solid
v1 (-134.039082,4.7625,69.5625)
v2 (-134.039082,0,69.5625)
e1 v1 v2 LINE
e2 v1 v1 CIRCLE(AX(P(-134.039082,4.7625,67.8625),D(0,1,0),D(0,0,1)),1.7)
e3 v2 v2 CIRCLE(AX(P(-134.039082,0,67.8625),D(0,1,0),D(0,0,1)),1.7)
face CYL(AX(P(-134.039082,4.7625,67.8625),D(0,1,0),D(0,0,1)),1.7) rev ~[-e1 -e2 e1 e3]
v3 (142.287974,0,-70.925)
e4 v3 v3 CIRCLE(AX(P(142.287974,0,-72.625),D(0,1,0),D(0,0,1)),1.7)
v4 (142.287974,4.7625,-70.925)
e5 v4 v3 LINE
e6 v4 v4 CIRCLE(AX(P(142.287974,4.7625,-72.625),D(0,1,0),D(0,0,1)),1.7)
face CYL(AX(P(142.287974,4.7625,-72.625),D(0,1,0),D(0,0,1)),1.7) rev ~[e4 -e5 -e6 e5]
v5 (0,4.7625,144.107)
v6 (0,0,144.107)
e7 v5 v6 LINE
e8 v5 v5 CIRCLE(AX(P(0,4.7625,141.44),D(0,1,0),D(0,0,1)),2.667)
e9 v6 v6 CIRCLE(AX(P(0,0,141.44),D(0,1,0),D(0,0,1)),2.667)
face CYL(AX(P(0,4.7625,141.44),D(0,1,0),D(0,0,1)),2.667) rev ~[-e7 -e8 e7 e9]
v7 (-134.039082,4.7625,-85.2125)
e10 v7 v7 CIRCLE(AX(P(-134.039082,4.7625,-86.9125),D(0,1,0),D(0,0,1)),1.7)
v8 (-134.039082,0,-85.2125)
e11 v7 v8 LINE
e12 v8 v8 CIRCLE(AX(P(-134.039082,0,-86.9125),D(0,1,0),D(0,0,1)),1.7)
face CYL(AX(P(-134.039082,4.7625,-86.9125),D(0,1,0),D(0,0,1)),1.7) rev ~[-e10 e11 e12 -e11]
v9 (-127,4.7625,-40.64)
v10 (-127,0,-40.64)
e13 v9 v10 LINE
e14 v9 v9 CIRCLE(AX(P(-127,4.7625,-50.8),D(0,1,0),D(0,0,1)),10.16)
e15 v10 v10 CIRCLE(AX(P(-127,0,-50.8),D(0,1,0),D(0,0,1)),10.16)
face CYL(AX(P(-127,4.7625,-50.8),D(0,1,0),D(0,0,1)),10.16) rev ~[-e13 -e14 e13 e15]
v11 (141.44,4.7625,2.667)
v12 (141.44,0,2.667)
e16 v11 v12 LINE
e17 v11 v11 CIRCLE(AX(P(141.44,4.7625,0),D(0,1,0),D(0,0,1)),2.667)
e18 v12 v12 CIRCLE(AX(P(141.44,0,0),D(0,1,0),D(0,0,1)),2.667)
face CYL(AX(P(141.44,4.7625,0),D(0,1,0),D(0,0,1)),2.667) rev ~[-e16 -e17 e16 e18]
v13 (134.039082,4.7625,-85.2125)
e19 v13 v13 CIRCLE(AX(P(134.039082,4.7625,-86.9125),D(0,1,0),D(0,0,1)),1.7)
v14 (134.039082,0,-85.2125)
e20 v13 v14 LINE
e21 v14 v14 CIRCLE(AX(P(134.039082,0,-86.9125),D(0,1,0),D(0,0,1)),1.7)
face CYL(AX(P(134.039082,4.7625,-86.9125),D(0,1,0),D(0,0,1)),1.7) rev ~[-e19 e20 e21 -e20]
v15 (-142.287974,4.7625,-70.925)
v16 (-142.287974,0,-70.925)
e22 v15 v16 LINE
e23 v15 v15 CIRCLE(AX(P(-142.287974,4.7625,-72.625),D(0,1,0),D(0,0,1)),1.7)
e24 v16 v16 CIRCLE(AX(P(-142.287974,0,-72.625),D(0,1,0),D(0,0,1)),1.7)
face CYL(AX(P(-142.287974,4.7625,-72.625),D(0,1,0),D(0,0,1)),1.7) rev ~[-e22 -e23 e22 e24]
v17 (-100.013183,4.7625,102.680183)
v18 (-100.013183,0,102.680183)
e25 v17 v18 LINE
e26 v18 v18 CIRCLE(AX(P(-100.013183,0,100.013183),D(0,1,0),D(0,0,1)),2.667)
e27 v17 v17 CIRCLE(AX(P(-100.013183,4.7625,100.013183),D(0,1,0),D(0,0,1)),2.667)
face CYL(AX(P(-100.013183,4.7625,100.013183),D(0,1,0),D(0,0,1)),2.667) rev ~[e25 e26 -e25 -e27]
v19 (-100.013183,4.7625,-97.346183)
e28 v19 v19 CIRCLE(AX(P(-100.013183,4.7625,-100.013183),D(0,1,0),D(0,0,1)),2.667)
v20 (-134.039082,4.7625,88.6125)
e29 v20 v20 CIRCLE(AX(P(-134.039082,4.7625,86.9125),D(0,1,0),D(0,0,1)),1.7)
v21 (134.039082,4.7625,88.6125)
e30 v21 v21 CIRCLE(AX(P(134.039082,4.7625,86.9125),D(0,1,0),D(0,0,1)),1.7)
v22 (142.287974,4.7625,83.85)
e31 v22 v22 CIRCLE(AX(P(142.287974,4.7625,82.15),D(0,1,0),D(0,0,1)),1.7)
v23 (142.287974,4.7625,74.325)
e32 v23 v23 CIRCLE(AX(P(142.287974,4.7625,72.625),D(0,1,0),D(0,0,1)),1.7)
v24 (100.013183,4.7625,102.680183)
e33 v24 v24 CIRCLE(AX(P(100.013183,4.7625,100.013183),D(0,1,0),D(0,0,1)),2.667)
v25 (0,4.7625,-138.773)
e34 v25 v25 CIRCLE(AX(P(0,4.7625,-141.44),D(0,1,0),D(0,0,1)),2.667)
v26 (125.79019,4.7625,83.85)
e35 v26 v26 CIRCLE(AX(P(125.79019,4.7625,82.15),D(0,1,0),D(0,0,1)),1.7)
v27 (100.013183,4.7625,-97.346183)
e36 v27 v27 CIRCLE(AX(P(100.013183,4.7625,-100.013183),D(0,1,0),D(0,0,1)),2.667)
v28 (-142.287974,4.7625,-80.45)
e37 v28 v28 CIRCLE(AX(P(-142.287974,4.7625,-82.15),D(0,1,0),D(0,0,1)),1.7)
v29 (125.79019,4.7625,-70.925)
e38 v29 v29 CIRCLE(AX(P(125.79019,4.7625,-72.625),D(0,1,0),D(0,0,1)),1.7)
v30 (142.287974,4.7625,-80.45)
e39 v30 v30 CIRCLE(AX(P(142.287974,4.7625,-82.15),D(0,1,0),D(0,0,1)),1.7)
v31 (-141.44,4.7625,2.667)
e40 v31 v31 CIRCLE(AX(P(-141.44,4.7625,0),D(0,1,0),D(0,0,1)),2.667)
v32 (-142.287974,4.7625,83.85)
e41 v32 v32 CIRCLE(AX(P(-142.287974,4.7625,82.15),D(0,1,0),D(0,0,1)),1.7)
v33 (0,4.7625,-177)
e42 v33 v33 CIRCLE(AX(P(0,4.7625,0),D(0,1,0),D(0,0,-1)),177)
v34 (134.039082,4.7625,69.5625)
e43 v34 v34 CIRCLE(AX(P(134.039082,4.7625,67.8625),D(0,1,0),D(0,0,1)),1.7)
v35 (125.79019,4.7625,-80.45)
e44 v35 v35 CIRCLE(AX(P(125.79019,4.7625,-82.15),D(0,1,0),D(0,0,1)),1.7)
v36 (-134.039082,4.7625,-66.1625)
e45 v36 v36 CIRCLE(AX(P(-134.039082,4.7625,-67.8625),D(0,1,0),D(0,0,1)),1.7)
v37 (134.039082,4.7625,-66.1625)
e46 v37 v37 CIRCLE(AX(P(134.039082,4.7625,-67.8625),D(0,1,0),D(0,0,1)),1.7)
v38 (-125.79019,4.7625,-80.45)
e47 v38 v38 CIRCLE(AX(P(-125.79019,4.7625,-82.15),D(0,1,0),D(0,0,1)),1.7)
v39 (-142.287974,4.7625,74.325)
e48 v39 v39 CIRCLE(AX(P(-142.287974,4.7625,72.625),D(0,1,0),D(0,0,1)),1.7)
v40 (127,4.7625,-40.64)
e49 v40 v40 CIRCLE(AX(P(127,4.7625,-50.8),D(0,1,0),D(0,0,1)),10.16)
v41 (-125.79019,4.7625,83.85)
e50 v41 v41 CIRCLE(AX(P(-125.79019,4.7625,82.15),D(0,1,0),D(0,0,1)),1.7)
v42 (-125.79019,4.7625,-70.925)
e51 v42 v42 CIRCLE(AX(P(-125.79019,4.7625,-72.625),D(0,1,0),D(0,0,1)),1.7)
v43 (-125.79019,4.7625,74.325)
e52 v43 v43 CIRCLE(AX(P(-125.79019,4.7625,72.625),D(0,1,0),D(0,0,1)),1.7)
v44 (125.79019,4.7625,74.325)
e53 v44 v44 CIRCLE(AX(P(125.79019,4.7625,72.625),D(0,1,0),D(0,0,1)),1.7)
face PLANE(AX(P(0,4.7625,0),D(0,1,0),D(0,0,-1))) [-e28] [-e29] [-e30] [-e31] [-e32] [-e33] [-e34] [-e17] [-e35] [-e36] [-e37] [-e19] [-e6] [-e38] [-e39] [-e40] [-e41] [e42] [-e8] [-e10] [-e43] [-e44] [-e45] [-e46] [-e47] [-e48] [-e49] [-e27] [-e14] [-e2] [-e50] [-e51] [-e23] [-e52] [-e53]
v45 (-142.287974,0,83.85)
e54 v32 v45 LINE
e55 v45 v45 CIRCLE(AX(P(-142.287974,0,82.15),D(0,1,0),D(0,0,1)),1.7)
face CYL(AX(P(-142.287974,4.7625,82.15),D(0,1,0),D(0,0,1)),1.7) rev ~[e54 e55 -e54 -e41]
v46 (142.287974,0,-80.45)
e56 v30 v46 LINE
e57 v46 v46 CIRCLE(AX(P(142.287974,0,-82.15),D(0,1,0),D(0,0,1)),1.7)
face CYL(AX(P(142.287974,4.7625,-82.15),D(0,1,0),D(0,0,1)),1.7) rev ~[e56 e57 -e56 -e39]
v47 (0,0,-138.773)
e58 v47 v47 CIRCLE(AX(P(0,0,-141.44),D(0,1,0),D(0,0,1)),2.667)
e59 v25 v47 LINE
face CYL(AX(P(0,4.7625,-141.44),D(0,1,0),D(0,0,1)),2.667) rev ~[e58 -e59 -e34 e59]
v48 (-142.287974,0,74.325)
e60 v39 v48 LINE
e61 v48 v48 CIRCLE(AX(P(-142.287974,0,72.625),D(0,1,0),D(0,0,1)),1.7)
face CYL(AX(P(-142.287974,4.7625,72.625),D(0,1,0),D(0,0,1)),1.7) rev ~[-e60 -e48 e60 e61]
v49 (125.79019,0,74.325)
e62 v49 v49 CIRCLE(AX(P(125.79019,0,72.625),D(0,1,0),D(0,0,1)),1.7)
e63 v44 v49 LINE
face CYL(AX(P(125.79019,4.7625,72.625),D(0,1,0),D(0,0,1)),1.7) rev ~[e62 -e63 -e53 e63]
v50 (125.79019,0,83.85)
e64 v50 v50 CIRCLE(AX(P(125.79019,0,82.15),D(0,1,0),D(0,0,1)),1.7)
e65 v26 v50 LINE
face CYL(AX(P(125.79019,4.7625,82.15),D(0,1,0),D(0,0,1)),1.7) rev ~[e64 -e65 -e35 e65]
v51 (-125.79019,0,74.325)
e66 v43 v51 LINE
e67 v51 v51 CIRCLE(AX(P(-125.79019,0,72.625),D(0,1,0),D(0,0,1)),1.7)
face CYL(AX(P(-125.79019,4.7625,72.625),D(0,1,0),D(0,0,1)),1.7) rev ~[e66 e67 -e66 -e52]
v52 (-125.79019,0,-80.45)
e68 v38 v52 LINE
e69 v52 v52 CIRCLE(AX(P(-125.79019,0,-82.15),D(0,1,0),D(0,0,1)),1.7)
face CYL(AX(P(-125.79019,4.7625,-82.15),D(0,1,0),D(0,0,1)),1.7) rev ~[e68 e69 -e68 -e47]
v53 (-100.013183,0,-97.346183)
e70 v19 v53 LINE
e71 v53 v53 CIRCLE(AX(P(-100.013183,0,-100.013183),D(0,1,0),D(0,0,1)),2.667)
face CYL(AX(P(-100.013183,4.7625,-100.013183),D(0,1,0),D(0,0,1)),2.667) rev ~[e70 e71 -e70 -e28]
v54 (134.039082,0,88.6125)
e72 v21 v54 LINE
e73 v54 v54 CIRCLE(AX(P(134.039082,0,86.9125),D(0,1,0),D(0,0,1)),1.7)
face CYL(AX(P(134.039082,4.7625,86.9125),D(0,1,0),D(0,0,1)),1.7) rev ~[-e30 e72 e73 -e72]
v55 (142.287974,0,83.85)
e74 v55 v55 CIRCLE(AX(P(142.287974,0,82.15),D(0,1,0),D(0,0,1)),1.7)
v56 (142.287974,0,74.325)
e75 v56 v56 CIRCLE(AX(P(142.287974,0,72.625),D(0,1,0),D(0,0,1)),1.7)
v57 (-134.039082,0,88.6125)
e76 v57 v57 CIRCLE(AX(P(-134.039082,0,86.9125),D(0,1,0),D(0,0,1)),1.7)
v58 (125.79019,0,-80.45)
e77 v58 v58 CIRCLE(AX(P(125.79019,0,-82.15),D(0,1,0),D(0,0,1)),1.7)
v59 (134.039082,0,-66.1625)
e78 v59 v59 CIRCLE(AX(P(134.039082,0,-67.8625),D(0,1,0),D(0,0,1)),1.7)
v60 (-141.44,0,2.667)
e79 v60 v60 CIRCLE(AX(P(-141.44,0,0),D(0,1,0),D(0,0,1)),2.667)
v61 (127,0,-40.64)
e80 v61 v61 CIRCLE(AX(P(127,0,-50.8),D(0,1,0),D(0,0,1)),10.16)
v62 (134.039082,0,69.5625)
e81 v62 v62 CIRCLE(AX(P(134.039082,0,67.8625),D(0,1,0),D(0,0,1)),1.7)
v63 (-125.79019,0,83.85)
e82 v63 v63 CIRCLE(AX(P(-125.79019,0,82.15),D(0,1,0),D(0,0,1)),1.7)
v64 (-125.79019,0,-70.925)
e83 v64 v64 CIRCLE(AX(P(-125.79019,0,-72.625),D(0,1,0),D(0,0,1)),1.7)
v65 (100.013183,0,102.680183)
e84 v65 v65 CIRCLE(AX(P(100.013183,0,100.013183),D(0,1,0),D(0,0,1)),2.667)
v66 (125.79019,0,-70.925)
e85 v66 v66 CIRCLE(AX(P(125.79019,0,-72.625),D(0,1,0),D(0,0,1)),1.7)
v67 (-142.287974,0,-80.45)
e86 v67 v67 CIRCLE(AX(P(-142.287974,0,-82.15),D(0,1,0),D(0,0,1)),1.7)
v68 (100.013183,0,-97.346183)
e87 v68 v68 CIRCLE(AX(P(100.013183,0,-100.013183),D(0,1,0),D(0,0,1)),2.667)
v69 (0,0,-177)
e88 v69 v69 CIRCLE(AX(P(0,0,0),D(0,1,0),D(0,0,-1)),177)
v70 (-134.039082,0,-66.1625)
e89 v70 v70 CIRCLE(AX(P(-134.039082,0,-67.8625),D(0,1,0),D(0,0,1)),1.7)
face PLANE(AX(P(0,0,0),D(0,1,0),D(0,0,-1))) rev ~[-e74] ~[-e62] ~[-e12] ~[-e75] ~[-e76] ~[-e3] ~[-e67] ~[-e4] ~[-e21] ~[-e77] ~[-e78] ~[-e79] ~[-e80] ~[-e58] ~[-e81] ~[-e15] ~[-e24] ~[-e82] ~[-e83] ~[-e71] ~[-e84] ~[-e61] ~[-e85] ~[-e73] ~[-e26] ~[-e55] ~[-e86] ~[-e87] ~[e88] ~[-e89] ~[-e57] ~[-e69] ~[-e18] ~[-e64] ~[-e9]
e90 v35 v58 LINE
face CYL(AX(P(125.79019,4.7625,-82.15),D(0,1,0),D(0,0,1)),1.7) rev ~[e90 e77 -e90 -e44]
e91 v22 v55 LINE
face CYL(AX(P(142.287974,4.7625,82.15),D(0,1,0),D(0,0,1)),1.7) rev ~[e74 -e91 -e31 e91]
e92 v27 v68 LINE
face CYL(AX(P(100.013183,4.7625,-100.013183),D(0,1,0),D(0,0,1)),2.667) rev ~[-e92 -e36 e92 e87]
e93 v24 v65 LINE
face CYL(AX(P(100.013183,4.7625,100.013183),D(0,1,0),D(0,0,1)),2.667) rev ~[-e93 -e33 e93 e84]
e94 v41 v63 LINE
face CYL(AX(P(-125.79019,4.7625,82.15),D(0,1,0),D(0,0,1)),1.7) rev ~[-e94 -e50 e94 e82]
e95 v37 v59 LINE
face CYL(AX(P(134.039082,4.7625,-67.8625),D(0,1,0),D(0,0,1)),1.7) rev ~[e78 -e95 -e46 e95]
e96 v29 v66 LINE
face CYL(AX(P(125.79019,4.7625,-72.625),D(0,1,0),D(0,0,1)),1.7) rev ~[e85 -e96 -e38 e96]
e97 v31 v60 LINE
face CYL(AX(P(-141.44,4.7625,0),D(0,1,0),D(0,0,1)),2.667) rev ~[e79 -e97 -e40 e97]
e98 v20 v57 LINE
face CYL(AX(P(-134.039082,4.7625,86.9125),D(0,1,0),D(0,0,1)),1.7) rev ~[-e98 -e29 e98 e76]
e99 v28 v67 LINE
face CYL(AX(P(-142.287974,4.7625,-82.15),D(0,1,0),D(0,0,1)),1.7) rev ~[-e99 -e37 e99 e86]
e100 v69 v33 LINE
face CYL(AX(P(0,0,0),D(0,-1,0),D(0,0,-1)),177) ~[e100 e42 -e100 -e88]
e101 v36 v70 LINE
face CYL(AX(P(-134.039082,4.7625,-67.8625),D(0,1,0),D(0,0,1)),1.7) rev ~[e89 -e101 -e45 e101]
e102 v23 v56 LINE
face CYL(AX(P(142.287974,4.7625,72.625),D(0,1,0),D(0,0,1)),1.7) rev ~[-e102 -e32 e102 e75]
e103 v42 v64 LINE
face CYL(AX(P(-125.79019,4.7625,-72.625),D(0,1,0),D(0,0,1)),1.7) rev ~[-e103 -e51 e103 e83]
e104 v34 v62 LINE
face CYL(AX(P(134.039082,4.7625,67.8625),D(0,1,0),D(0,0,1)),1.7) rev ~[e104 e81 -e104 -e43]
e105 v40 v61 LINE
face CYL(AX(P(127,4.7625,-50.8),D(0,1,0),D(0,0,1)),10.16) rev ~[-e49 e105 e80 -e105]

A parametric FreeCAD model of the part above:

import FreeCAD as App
import Part
import Sketcher
Q = App.Units.Quantity

doc = App.newDocument("Part")
body = doc.addObject("PartDesign::Body", "Body")

sketch1 = body.newObject("Sketcher::SketchObject", "Sketch")
sketch1.AttachmentSupport = (doc.getObject("XZ_Plane"), [""])
sketch1.MapMode = "FlatFace"
sketch1.addGeometry(Part.Circle(App.Vector(0, 0, 0), App.Vector(0, 0, 1), 177), False)
sketch1.addConstraint([
    Sketcher.Constraint("Coincident", 0, 3, -1, 1),
    Sketcher.Constraint("Diameter", 0, 354.0),
])
pad1 = body.newObject("PartDesign::Pad", "Pad")
pad1.Profile = sketch1
pad1.Length = Q("0.1875 in")
pad1.Reversed = True

sketch2 = body.newObject("Sketcher::SketchObject", "Sketch001")
sketch2.AttachmentSupport = (doc.getObject("XZ_Plane"), [""])
sketch2.MapMode = "FlatFace"
sketch2.AttachmentOffset = App.Placement(App.Vector(0, 0, -0.1875 * 25.4), App.Rotation())
sketch2.addGeometry([
    Part.Circle(App.Vector(142.287974, 82.15, 0), App.Vector(0, 0, 1), 1.7),
    Part.Circle(App.Vector(134.039082, 86.9125, 0), App.Vector(0, 0, 1), 1.7),
    Part.Circle(App.Vector(125.79019, 82.15, 0), App.Vector(0, 0, 1), 1.7),
    Part.Circle(App.Vector(125.79019, 72.625, 0), App.Vector(0, 0, 1), 1.7),
    Part.Circle(App.Vector(134.039082, 67.8625, 0), App.Vector(0, 0, 1), 1.7),
    Part.Circle(App.Vector(142.287974, 72.625, 0), App.Vector(0, 0, 1), 1.7),
    Part.Circle(App.Vector(-142.287974, 72.625, 0), App.Vector(0, 0, 1), 1.7),
    Part.Circle(App.Vector(-134.039082, 67.8625, 0), App.Vector(0, 0, 1), 1.7),
    Part.Circle(App.Vector(-125.79019, 72.625, 0), App.Vector(0, 0, 1), 1.7),
    Part.Circle(App.Vector(-125.79019, 82.15, 0), App.Vector(0, 0, 1), 1.7),
    Part.Circle(App.Vector(-134.039082, 86.9125, 0), App.Vector(0, 0, 1), 1.7),
    Part.Circle(App.Vector(-142.287974, 82.15, 0), App.Vector(0, 0, 1), 1.7),
    Part.Circle(App.Vector(-142.287974, -82.15, 0), App.Vector(0, 0, 1), 1.7),
    Part.Circle(App.Vector(-134.039082, -86.9125, 0), App.Vector(0, 0, 1), 1.7),
    Part.Circle(App.Vector(-125.79019, -82.15, 0), App.Vector(0, 0, 1), 1.7),
    Part.Circle(App.Vector(-125.79019, -72.625, 0), App.Vector(0, 0, 1), 1.7),
    Part.Circle(App.Vector(-134.039082, -67.8625, 0), App.Vector(0, 0, 1), 1.7),
    Part.Circle(App.Vector(-142.287974, -72.625, 0), App.Vector(0, 0, 1), 1.7),
    Part.Circle(App.Vector(142.287974, -72.625, 0), App.Vector(0, 0, 1), 1.7),
    Part.Circle(App.Vector(134.039082, -67.8625, 0), App.Vector(0, 0, 1), 1.7),
    Part.Circle(App.Vector(125.79019, -72.625, 0), App.Vector(0, 0, 1), 1.7),
    Part.Circle(App.Vector(125.79019, -82.15, 0), App.Vector(0, 0, 1), 1.7),
    Part.Circle(App.Vector(134.039082, -86.9125, 0), App.Vector(0, 0, 1), 1.7),
    Part.Circle(App.Vector(142.287974, -82.15, 0), App.Vector(0, 0, 1), 1.7),
], False)
sketch2.addConstraint([
    Sketcher.Constraint("Equal", 0, 1),
    Sketcher.Constraint("Equal", 1, 2),
    Sketcher.Constraint("Equal", 2, 3),
    Sketcher.Constraint("Equal", 3, 4),
    Sketcher.Constraint("Equal", 4, 5),
    Sketcher.Constraint("Equal", 5, 6),
    Sketcher.Constraint("Equal", 6, 7),
    Sketcher.Constraint("Equal", 7, 8),
    Sketcher.Constraint("Equal", 8, 9),
    Sketcher.Constraint("Equal", 9, 10),
    Sketcher.Constraint("Equal", 10, 11),
    Sketcher.Constraint("Equal", 11, 12),
    Sketcher.Constraint("Equal", 12, 13),
    Sketcher.Constraint("Equal", 13, 14),
    Sketcher.Constraint("Equal", 14, 15),
    Sketcher.Constraint("Equal", 15, 16),
    Sketcher.Constraint("Equal", 16, 17),
    Sketcher.Constraint("Equal", 17, 18),
    Sketcher.Constraint("Equal", 18, 19),
    Sketcher.Constraint("Equal", 19, 20),
    Sketcher.Constraint("Equal", 20, 21),
    Sketcher.Constraint("Equal", 21, 22),
    Sketcher.Constraint("Equal", 22, 23),
    Sketcher.Constraint("Symmetric", 0, 3, 12, 3, -1, 1),
    Sketcher.Constraint("Symmetric", 1, 3, 13, 3, -1, 1),
    Sketcher.Constraint("Symmetric", 2, 3, 14, 3, -1, 1),
    Sketcher.Constraint("Symmetric", 3, 3, 15, 3, -1, 1),
    Sketcher.Constraint("Symmetric", 4, 3, 16, 3, -1, 1),
    Sketcher.Constraint("Symmetric", 5, 3, 17, 3, -1, 1),
    Sketcher.Constraint("Symmetric", 6, 3, 18, 3, -1, 1),
    Sketcher.Constraint("Symmetric", 7, 3, 19, 3, -1, 1),
    Sketcher.Constraint("Symmetric", 8, 3, 20, 3, -1, 1),
    Sketcher.Constraint("Symmetric", 9, 3, 21, 3, -1, 1),
    Sketcher.Constraint("Symmetric", 10, 3, 22, 3, -1, 1),
    Sketcher.Constraint("Symmetric", 11, 3, 23, 3, -1, 1),
    Sketcher.Constraint("Symmetric", 5, 3, 6, 3, -2),
    Sketcher.Constraint("Symmetric", 4, 3, 7, 3, -2),
    Sketcher.Constraint("Symmetric", 3, 3, 8, 3, -2),
    Sketcher.Constraint("Symmetric", 2, 3, 9, 3, -2),
    Sketcher.Constraint("Symmetric", 1, 3, 10, 3, -2),
    Sketcher.Constraint("Symmetric", 0, 3, 11, 3, -2),
    Sketcher.Constraint("Horizontal", 0, 3, 2, 3),
    Sketcher.Constraint("Horizontal", 3, 3, 5, 3),
    Sketcher.Constraint("Vertical", 2, 3, 3, 3),
    Sketcher.Constraint("Vertical", 1, 3, 4, 3),
    Sketcher.Constraint("Vertical", 0, 3, 5, 3),
    Sketcher.Constraint("Diameter", 0, 3.4),
    Sketcher.Constraint("DistanceY", 4, 3, 1, 3, Q("0.75 in")),
    Sketcher.Constraint("DistanceY", 0, 3, 1, 3, Q("0.1875 in")),
    Sketcher.Constraint("DistanceY", 3, 3, 2, 3, Q("0.375 in")),
    Sketcher.Constraint("DistanceY", -1, 1, 0, 3, 82.15),
    Sketcher.Constraint("DistanceX", -1, 1, 1, 3, 134.039082),
    Sketcher.Constraint("DistanceX", -1, 1, 2, 3, 125.79019),
    Sketcher.Constraint("DistanceX", 1, 3, 0, 3, 8.248892),
])
pocket1 = body.newObject("PartDesign::Pocket", "Pocket")
pocket1.Profile = sketch2
pocket1.Type = "ThroughAll"
pocket1.Reversed = True

sketch3 = body.newObject("Sketcher::SketchObject", "Sketch002")
sketch3.AttachmentSupport = (doc.getObject("XZ_Plane"), [""])
sketch3.MapMode = "FlatFace"
sketch3.AttachmentOffset = App.Placement(App.Vector(0, 0, -0.1875 * 25.4), App.Rotation())
sketch3.addGeometry([
    Part.Circle(App.Vector(0, 141.44, 0), App.Vector(0, 0, 1), 2.667),
    Part.Circle(App.Vector(-100.013183, 100.013183, 0), App.Vector(0, 0, 1), 2.667),
    Part.Circle(App.Vector(-141.44, 0, 0), App.Vector(0, 0, 1), 2.667),
    Part.Circle(App.Vector(-100.013183, -100.013183, 0), App.Vector(0, 0, 1), 2.667),
    Part.Circle(App.Vector(0, -141.44, 0), App.Vector(0, 0, 1), 2.667),
    Part.Circle(App.Vector(100.013183, -100.013183, 0), App.Vector(0, 0, 1), 2.667),
    Part.Circle(App.Vector(141.44, 0, 0), App.Vector(0, 0, 1), 2.667),
    Part.Circle(App.Vector(100.013183, 100.013183, 0), App.Vector(0, 0, 1), 2.667),
], False)
sketch3.addConstraint([
    Sketcher.Constraint("Equal", 0, 1),
    Sketcher.Constraint("Equal", 1, 2),
    Sketcher.Constraint("Equal", 2, 3),
    Sketcher.Constraint("Equal", 3, 4),
    Sketcher.Constraint("Equal", 4, 5),
    Sketcher.Constraint("Equal", 5, 6),
    Sketcher.Constraint("Equal", 6, 7),
    Sketcher.Constraint("Symmetric", 0, 3, 4, 3, -1, 1),
    Sketcher.Constraint("Symmetric", 1, 3, 5, 3, -1, 1),
    Sketcher.Constraint("Symmetric", 2, 3, 6, 3, -1, 1),
    Sketcher.Constraint("Symmetric", 3, 3, 7, 3, -1, 1),
    Sketcher.Constraint("Symmetric", 3, 3, 5, 3, -2),
    Sketcher.Constraint("PointOnObject", 0, 3, -2),
    Sketcher.Constraint("PointOnObject", 2, 3, -1),
    Sketcher.Constraint("Diameter", 0, Q("0.21 in")),
    Sketcher.Constraint("DistanceY", -1, 1, 0, 3, 141.44),
    Sketcher.Constraint("DistanceX", 2, 3, -1, 1, 141.44),
    Sketcher.Constraint("DistanceX", 1, 3, -1, 1, 100.013183),
    Sketcher.Constraint("DistanceY", -1, 1, 1, 3, 100.013183),
])
pocket2 = body.newObject("PartDesign::Pocket", "Pocket001")
pocket2.Profile = sketch3
pocket2.Type = "ThroughAll"
pocket2.Reversed = True

sketch4 = body.newObject("Sketcher::SketchObject", "Sketch003")
sketch4.AttachmentSupport = (doc.getObject("XZ_Plane"), [""])
sketch4.MapMode = "FlatFace"
sketch4.AttachmentOffset = App.Placement(App.Vector(0, 0, -0.1875 * 25.4), App.Rotation())
sketch4.addGeometry([
    Part.Circle(App.Vector(-127, -50.8, 0), App.Vector(0, 0, 1), 10.16),
    Part.Circle(App.Vector(127, -50.8, 0), App.Vector(0, 0, 1), 10.16),
], False)
sketch4.addConstraint([
    Sketcher.Constraint("Equal", 0, 1),
    Sketcher.Constraint("Symmetric", 0, 3, 1, 3, -2),
    Sketcher.Constraint("Diameter", 0, Q("0.8 in")),
    Sketcher.Constraint("DistanceX", 0, 3, -1, 1, Q("5 in")),
    Sketcher.Constraint("DistanceY", 0, 3, -1, 1, Q("2 in")),
])
pocket3 = body.newObject("PartDesign::Pocket", "Pocket002")
pocket3.Profile = sketch4
pocket3.Type = "ThroughAll"
pocket3.Reversed = True

doc.recompute()
